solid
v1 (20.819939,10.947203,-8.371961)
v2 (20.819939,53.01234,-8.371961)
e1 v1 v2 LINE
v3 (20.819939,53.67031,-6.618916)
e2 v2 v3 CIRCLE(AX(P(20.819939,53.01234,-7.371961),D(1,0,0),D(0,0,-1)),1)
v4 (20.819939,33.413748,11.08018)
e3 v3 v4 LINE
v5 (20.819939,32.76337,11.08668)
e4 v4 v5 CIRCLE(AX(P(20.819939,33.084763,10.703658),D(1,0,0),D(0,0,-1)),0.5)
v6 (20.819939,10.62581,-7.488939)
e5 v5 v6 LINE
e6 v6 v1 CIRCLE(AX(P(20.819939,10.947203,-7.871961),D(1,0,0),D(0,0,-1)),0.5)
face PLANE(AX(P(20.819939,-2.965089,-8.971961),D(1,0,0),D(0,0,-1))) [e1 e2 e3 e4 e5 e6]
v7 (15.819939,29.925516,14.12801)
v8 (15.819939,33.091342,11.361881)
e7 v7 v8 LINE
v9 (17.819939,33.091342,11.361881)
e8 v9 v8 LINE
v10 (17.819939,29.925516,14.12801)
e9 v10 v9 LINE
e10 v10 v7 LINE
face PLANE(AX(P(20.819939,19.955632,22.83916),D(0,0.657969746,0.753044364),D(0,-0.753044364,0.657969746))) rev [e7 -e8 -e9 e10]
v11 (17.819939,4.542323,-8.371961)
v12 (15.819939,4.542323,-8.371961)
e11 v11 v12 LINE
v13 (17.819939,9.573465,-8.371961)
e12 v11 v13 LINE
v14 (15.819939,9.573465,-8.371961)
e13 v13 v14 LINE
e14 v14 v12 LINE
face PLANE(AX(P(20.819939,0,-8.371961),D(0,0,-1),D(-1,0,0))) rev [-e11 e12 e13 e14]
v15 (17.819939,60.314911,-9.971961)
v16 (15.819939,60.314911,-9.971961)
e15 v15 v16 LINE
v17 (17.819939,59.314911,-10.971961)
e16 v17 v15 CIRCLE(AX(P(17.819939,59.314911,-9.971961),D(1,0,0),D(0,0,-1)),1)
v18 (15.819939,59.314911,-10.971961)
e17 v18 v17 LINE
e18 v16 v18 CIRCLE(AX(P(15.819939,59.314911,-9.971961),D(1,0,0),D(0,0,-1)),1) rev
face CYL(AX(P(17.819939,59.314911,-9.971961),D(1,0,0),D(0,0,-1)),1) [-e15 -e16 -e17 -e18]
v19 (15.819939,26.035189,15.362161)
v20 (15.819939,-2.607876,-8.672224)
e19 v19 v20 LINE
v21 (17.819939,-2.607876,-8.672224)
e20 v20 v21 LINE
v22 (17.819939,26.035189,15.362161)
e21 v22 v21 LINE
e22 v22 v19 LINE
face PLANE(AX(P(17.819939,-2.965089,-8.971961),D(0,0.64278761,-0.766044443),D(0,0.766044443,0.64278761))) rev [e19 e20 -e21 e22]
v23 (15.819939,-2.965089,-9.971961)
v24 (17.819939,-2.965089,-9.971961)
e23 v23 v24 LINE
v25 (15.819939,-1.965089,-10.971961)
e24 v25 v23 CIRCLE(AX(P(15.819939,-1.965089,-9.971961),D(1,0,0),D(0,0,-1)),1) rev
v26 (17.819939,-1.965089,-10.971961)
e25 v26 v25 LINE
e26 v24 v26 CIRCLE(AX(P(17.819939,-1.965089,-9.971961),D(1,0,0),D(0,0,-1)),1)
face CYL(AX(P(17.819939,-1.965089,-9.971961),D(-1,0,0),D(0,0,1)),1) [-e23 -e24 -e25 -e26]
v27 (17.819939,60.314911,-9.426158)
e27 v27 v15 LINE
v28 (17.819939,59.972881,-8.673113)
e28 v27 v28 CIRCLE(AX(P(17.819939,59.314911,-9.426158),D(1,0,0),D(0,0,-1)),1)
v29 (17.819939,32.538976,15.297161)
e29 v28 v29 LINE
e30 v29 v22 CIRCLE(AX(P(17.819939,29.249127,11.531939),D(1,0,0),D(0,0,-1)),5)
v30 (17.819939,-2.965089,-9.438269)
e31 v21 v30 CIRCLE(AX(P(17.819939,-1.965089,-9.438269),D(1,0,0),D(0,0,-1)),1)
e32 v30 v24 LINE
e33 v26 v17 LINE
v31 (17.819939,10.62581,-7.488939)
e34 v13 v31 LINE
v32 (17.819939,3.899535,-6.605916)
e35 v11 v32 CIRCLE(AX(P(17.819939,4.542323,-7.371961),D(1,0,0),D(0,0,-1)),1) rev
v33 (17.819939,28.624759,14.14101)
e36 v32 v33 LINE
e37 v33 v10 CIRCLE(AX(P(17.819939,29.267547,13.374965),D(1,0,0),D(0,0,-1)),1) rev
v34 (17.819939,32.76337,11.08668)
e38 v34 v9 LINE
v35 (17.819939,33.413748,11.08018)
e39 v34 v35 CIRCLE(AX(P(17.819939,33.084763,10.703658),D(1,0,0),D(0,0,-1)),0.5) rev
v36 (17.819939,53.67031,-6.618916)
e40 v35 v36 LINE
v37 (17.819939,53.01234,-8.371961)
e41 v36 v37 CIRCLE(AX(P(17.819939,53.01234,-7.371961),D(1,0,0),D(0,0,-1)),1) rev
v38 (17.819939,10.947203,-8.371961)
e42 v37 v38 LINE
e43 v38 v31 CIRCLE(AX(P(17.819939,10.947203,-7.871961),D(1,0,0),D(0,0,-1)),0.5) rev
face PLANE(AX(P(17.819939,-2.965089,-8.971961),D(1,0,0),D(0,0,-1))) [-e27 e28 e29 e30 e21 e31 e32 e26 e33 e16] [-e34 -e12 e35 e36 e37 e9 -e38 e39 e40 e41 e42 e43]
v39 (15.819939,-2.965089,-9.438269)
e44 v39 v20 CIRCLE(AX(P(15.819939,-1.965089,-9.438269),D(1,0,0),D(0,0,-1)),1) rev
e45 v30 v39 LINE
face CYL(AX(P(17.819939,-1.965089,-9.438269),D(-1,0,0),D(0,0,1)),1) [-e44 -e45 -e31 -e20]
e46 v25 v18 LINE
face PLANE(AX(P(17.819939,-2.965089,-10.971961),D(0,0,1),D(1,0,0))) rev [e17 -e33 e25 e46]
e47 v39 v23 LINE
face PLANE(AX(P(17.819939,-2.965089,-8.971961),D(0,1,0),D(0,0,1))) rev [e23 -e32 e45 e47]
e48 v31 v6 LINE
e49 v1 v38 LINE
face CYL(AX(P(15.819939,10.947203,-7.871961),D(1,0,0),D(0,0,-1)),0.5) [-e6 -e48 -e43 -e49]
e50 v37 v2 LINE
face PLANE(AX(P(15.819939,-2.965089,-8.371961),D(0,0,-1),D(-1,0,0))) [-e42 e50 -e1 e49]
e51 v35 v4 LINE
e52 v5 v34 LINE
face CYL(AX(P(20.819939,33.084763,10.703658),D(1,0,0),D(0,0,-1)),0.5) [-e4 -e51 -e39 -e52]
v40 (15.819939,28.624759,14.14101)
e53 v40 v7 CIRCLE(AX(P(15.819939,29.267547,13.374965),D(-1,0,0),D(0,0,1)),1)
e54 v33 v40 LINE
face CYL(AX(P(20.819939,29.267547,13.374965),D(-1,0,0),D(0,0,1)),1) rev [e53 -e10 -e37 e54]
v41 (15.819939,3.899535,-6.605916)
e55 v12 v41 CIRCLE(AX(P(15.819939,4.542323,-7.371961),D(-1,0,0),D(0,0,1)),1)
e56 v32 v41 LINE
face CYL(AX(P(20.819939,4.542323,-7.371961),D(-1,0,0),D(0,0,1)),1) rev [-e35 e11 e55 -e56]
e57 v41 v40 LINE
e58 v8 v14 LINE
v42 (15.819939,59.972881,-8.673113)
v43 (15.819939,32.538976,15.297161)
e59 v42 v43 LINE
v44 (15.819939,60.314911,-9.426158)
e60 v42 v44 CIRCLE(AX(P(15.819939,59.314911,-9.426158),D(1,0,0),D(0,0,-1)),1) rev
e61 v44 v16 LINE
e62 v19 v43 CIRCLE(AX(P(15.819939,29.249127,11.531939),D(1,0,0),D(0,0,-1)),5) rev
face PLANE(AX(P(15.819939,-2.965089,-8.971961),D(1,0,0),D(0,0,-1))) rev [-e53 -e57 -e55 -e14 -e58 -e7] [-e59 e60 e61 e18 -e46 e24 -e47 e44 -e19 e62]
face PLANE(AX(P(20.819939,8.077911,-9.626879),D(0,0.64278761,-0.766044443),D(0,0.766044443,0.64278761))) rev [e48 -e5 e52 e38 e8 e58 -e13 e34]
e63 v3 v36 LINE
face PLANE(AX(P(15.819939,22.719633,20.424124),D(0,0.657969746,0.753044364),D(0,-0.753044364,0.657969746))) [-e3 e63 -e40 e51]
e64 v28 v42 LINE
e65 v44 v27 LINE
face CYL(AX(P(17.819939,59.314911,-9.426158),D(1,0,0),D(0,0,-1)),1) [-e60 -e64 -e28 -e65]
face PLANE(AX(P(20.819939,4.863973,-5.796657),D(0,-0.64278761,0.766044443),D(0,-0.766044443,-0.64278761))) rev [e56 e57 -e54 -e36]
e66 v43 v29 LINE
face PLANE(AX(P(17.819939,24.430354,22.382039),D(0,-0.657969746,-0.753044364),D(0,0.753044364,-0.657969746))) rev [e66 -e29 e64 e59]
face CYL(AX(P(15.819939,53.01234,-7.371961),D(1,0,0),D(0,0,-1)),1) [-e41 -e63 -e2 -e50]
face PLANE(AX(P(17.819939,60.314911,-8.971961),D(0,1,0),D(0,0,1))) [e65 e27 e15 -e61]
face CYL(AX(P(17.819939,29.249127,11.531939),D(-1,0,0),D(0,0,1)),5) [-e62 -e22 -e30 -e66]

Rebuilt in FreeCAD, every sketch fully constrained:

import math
import FreeCAD as App
import Part
import Sketcher

V = App.Vector
Q = App.Units.Quantity


def edges_at(feature, points):
    """Names of the edges that pass closest to the given points."""
    edges = feature.Shape.Edges
    near = lambda p: min(range(len(edges)), key=lambda i: edges[i].distToShape(Part.Vertex(*p))[0])
    return sorted({f"Edge{near(p) + 1}" for p in points})


def add_polygon(sketch, points):
    """Adds a closed chain of lines whose ends are joined by coincident constraints."""
    first, n = sketch.GeometryCount, len(points)
    for a, b in zip(points, points[1:] + points[:1]):
        sketch.addGeometry(Part.LineSegment(App.Vector(*a, 0), App.Vector(*b, 0)), False)
    for i in range(n):
        sketch.addConstraint(Sketcher.Constraint("Coincident", first + i, 2, first + (i + 1) % n, 1))

doc = App.newDocument("Part")
body = doc.addObject("PartDesign::Body", "Body")

# Sketch on YZ plane
sketch1 = body.newObject("Sketcher::SketchObject", "Sketch")
sketch1.AttachmentSupport = (doc.getObject("YZ_Plane"), [""])
sketch1.MapMode = "FlatFace"
add_polygon(sketch1, [(32.245792, 23.663373), (4.759934, 0.6), (58.641752, 0.6)])  # lines 0-2
sketch1.addConstraint([
    Sketcher.Constraint("Horizontal", 1),
    Sketcher.Constraint("Angle", 0, Q("-140 deg")),
    Sketcher.Constraint("DistanceY", -1, 1, 0, 2, Q("0.6 mm")),
    Sketcher.Constraint("DistanceX", 1, 1, 1, 2, Q("53.881818 mm")),
    Sketcher.Constraint("Distance", 0, Q("35.880239 mm")),
    Sketcher.Constraint("DistanceX", -1, 1, 0, 2, Q("4.759934 mm")),
])
pad1 = body.newObject("PartDesign::Pad", "Pad")
pad1.Profile = sketch1
pad1.Length = 5
pad1.Reversed = True

# Sketch on YZ plane
sketch2 = body.newObject("Sketcher::SketchObject", "Sketch001")
sketch2.AttachmentSupport = (doc.getObject("YZ_Plane"), [""])
sketch2.MapMode = "FlatFace"
sketch2.AttachmentOffset = App.Placement(V(0, 0, -5), App.Rotation())
add_polygon(sketch2, [(0, 0), (0, -2), (63.28, -2), (63.28, 0), (32.28, 27.086136)])  # lines 0-4
sketch2.addConstraint([
    Sketcher.Constraint("Vertical", 0),
    Sketcher.Constraint("Horizontal", 1),
    Sketcher.Constraint("Vertical", 2),
    Sketcher.Constraint("Coincident", 4, 2, -1, 1),
    Sketcher.Constraint("PointOnObject", 2, 2, -1),
    Sketcher.Constraint("DistanceY", 0, 2, 0, 1, Q("2 mm")),
    Sketcher.Constraint("Angle", 4, Q("-140 deg")),
    Sketcher.Constraint("DistanceX", 3, 2, 2, 2, Q("31 mm")),
    Sketcher.Constraint("DistanceX", 1, 1, 1, 2, Q("63.28 mm")),
])
pad2 = body.newObject("PartDesign::Pad", "Pad001")
pad2.Profile = sketch2
pad2.Length = 2
doc.recompute()

fillet = body.newObject("PartDesign::Fillet", "Fillet")
fillet.Base = (pad2, edges_at(pad2, [(-4, 32.28, 27.086)]))
fillet.Radius = 5
doc.recompute()

fillet2 = body.newObject("PartDesign::Fillet", "Fillet001")
fillet2.Base = (fillet, edges_at(fillet, [(-1.5, 4.76, 0.6), (-1.5, 58.642, 0.6), (-1.5, 32.246, 23.663)]))
fillet2.Radius = 1
doc.recompute()

fillet3 = body.newObject("PartDesign::Fillet", "Fillet002")
fillet3.Base = (fillet2, edges_at(fillet2, [
    (-4, 63.28, -2),
    (-4, 63.28, 0),
    (-4, 0, 0),
    (-4, 0, -2),
]))
fillet3.Radius = 1
body2 = doc.addObject("PartDesign::Body", "Body001")
doc.recompute()

body.Placement = App.Placement(V(20.819939, -2.965089, -8.971961), App.Rotation(V(0, 0, 1), 0))
boolean = body2.newObject("PartDesign::Boolean", "Boolean")
boolean.Type = "Fuse"
boolean.addObjects([body])

# Sketch on YZ plane
sketch3 = body2.newObject("Sketcher::SketchObject", "Sketch002")
sketch3.AttachmentSupport = (doc.getObject("YZ_Plane001"), [""])
sketch3.MapMode = "FlatFace"
sketch3.AttachmentOffset = App.Placement(V(0, 0, 15.819939), App.Rotation())
sketch3.addGeometry([
    Part.LineSegment(V(29.925516, 14.12801, 0), V(33.091342, 11.361881, 0)),  # 0
    Part.LineSegment(V(33.091342, 11.361881, 0), V(9.573465, -8.371961, 0)),  # 1
    Part.LineSegment(V(9.573465, -8.371961, 0), V(4.542323, -8.371961, 0)),  # 2
    Part.ArcOfCircle(Part.Circle(V(4.542323, -7.371961, 0), V(0, 0, 1), 1), math.radians(130), math.radians(270)),  # 3
    Part.LineSegment(V(3.899535, -6.605916, 0), V(27.776163, 13.428953, 0)),  # 4
    Part.LineSegment(V(27.776163, 13.428953, 0), V(28.624759, 14.14101, 0)),  # 5
    Part.ArcOfCircle(Part.Circle(V(29.267547, 13.374965, 0), V(0, 0, 1), 1), math.radians(48.854783), math.radians(130)),  # 6
], False)
sketch3.addConstraint([
    Sketcher.Constraint("Coincident", 0, 2, 1, 1),
    Sketcher.Constraint("Coincident", 1, 2, 2, 1),
    Sketcher.Constraint("Tangent", 2, 2, 3, 2),
    Sketcher.Constraint("Tangent", 3, 1, 4, 1),
    Sketcher.Constraint("Coincident", 4, 2, 5, 1),
    Sketcher.Constraint("Tangent", 5, 2, 6, 2),
    Sketcher.Constraint("Tangent", 6, 1, 0, 1),
    Sketcher.Constraint("Horizontal", 2),
    Sketcher.Constraint("Equal", 3, 6),
    Sketcher.Constraint("Parallel", 1, 4),
    Sketcher.Constraint("Parallel", 4, 5),
    Sketcher.Constraint("Radius", 3, Q("1 mm")),
    Sketcher.Constraint("Angle", 1, Q("-140 deg")),
    Sketcher.Constraint("DistanceY", 6, 1, 5, 2, Q("0.013 mm")),
    Sketcher.Constraint("DistanceX", 2, 2, 2, 1, Q("5.031142 mm")),
    Sketcher.Constraint("Distance", 1, Q("30.700408 mm")),
    Sketcher.Constraint("DistanceY", 3, 3, -1, 1, Q("7.371961 mm")),
    Sketcher.Constraint("DistanceX", -1, 1, 0, 2, Q("33.091342 mm")),
    Sketcher.Constraint("DistanceX", 4, 2, 0, 2, Q("5.315179 mm")),
])
pocket1 = body2.newObject("PartDesign::Pocket", "Pocket")
pocket1.Profile = sketch3
pocket1.Type = "ThroughAll"
pocket1.Reversed = True
doc.recompute()

fillet4 = body2.newObject("PartDesign::Fillet", "Fillet003")
fillet4.Base = (pocket1, edges_at(pocket1, [(19.32, 33.091, 11.362), (19.32, 9.573, -8.372)]))
fillet4.Radius = 0.5

doc.recompute()
